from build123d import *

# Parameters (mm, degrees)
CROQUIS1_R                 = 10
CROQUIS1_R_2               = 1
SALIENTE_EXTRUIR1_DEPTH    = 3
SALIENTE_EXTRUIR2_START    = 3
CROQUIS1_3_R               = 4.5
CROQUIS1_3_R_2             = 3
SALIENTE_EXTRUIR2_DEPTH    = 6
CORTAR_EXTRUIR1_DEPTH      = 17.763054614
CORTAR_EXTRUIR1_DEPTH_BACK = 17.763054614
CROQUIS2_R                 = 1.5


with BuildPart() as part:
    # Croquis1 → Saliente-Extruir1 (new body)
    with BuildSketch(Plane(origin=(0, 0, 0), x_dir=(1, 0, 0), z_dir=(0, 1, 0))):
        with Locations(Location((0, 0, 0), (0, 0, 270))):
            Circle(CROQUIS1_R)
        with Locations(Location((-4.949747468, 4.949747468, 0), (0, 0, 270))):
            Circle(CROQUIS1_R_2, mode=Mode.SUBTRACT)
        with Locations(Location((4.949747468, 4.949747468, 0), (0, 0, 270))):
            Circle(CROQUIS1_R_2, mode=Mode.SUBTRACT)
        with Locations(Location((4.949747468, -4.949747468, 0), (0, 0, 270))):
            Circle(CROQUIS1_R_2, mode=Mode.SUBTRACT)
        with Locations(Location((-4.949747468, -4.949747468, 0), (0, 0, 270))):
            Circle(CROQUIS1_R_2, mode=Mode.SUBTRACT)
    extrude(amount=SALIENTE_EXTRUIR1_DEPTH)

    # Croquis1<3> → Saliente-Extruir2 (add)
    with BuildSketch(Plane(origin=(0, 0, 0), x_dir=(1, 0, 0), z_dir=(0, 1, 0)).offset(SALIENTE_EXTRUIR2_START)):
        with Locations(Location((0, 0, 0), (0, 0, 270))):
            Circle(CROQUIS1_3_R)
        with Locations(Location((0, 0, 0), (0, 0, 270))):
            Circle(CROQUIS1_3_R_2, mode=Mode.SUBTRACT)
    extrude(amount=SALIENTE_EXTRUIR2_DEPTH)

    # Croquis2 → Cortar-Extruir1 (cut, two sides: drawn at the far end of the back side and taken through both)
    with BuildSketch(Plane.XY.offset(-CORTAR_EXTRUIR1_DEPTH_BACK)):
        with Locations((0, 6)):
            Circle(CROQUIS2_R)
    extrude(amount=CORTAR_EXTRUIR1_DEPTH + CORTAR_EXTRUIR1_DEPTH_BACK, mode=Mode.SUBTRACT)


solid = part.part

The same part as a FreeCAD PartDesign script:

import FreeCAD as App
import Part
import Sketcher
from FreeCAD import Vector
Q = App.Units.Quantity

doc = App.newDocument("Part")
body = doc.addObject("PartDesign::Body", "Body")

sketch1 = doc.addObject("Sketcher::SketchObject", "Sketch")
body.addObject(sketch1)
sketch1.AttachmentSupport = (doc.XZ_Plane, [""])
sketch1.MapMode = "FlatFace"
sketch1.addGeometry(Part.Circle(Vector(0, 0, 0), Vector(0, 0, 1), 10), False)
sketch1.addGeometry(Part.Circle(Vector(-4.9, -4.9, 0), Vector(0, 0, 1), 1), False)
sketch1.addGeometry(Part.Circle(Vector(-4.9, 4.9, 0), Vector(0, 0, 1), 1), False)
sketch1.addGeometry(Part.Circle(Vector(4.9, -4.9, 0), Vector(0, 0, 1), 1), False)
sketch1.addGeometry(Part.Circle(Vector(4.9, 4.9, 0), Vector(0, 0, 1), 1), False)
sketch1.addConstraint(Sketcher.Constraint("Coincident", 0, 3, -1, 1))
sketch1.addConstraint(Sketcher.Constraint("Equal", 1, 2))
sketch1.addConstraint(Sketcher.Constraint("Equal", 2, 3))
sketch1.addConstraint(Sketcher.Constraint("Equal", 3, 4))
sketch1.addConstraint(Sketcher.Constraint("Symmetric", 2, 3, 3, 3, -1, 1))
sketch1.addConstraint(Sketcher.Constraint("Symmetric", 1, 3, 4, 3, -1, 1))
sketch1.addConstraint(Sketcher.Constraint("Symmetric", 1, 3, 3, 3, -2))
sketch1.addConstraint(Sketcher.Constraint("Diameter", 0, Q("20 mm")))
sketch1.addConstraint(Sketcher.Constraint("Diameter", 1, Q("2 mm")))
sketch1.addConstraint(Sketcher.Constraint("DistanceX", 1, 3, -1, 1, Q("4.949747 mm")))
sketch1.addConstraint(Sketcher.Constraint("DistanceY", 1, 3, -1, 1, Q("4.949747 mm")))
pad1 = doc.addObject("PartDesign::Pad", "Pad")
body.addObject(pad1)
pad1.Profile = sketch1
pad1.Length = 3
pad1.Reversed = True

sketch2 = doc.addObject("Sketcher::SketchObject", "Sketch001")
body.addObject(sketch2)
sketch2.AttachmentSupport = (doc.XZ_Plane, [""])
sketch2.MapMode = "FlatFace"
sketch2.AttachmentOffset = App.Placement(Vector(0, 0, -3), App.Rotation())
sketch2.addGeometry(Part.Circle(Vector(0, 0, 0), Vector(0, 0, 1), 4.5), False)
sketch2.addGeometry(Part.Circle(Vector(0, 0, 0), Vector(0, 0, 1), 3), False)
sketch2.addConstraint(Sketcher.Constraint("Coincident", 0, 3, -1, 1))
sketch2.addConstraint(Sketcher.Constraint("Coincident", 1, 3, -1, 1))
sketch2.addConstraint(Sketcher.Constraint("Diameter", 0, Q("9 mm")))
sketch2.addConstraint(Sketcher.Constraint("Diameter", 1, Q("6 mm")))
pad2 = doc.addObject("PartDesign::Pad", "Pad001")
body.addObject(pad2)
pad2.Profile = sketch2
pad2.Length = 6
pad2.Reversed = True

sketch3 = doc.addObject("Sketcher::SketchObject", "Sketch002")
body.addObject(sketch3)
sketch3.AttachmentSupport = (doc.XY_Plane, [""])
sketch3.MapMode = "FlatFace"
sketch3.addGeometry(Part.Circle(Vector(0, 6, 0), Vector(0, 0, 1), 1.5), False)
sketch3.addConstraint(Sketcher.Constraint("PointOnObject", 0, 3, -2))
sketch3.addConstraint(Sketcher.Constraint("Diameter", 0, Q("3 mm")))
sketch3.addConstraint(Sketcher.Constraint("DistanceY", -1, 1, 0, 3, Q("6 mm")))
pocket1 = doc.addObject("PartDesign::Pocket", "Pocket")
body.addObject(pocket1)
pocket1.Profile = sketch3
pocket1.Type = "ThroughAll"
pocket1.Midplane = True

doc.recompute()
